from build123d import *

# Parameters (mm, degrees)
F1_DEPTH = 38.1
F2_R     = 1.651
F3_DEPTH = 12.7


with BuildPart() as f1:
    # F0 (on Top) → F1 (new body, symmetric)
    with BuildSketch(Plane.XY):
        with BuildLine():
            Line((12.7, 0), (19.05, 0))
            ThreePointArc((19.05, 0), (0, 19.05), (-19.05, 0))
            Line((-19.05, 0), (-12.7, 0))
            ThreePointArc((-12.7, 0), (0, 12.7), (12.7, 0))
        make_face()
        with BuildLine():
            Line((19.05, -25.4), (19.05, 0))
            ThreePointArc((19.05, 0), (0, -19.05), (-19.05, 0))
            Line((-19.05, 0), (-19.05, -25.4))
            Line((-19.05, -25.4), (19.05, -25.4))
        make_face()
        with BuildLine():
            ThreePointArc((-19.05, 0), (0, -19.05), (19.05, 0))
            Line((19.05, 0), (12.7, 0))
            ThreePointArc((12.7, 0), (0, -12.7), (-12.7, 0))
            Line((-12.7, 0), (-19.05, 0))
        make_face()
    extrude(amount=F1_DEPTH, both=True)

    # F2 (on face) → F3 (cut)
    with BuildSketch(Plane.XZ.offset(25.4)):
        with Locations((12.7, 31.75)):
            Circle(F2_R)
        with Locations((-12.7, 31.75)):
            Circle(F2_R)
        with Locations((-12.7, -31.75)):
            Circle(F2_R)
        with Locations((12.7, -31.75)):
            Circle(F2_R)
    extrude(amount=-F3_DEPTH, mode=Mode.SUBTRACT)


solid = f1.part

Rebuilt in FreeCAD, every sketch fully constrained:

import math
import FreeCAD as App
import Part
import Sketcher
Q = App.Units.Quantity

doc = App.newDocument("Part")
body = doc.addObject("PartDesign::Body", "Body")

# Sketch on XY plane
sketch1 = body.newObject("Sketcher::SketchObject", "Sketch")
sketch1.AttachmentSupport = (doc.getObject("XY_Plane"), [""])
sketch1.MapMode = "FlatFace"
sketch1.addGeometry([
    Part.ArcOfCircle(Part.Circle(App.Vector(0, 0, 0), App.Vector(0, 0, 1), 19), math.radians(0), math.radians(180)),  # 0
    Part.LineSegment(App.Vector(-19, 0, 0), App.Vector(-19, -25, 0)),  # 1
    Part.LineSegment(App.Vector(-19, -25, 0), App.Vector(19, -25, 0)),  # 2
    Part.LineSegment(App.Vector(19, -25, 0), App.Vector(19, 0, 0)),  # 3
    Part.Circle(App.Vector(0, 0, 0), App.Vector(0, 0, 1), 13),  # 4
], False)
sketch1.addConstraint([
    Sketcher.Constraint("Tangent", 0, 2, 1, 1),
    Sketcher.Constraint("Coincident", 1, 2, 2, 1),
    Sketcher.Constraint("Coincident", 2, 2, 3, 1),
    Sketcher.Constraint("Tangent", 3, 2, 0, 1),
    Sketcher.Constraint("Vertical", 1),
    Sketcher.Constraint("Horizontal", 2),
    Sketcher.Constraint("Vertical", 3),
    Sketcher.Constraint("Coincident", 0, 3, -1, 1),
    Sketcher.Constraint("Coincident", 4, 3, -1, 1),
    Sketcher.Constraint("Diameter", 4, Q("1 in")),
    Sketcher.Constraint("DistanceY", 1, 2, 1, 1, Q("1 in")),
    Sketcher.Constraint("Radius", 0, Q("0.75 in")),
])
pad1 = body.newObject("PartDesign::Pad", "Pad")
pad1.Profile = sketch1
pad1.Length = Q("3 in")
pad1.Midplane = True

# Sketch on XZ plane
sketch2 = body.newObject("Sketcher::SketchObject", "Sketch001")
sketch2.AttachmentSupport = (doc.getObject("XZ_Plane"), [""])
sketch2.MapMode = "FlatFace"
sketch2.AttachmentOffset = App.Placement(App.Vector(0, 0, 1 * 25.4), App.Rotation())
sketch2.addGeometry([
    Part.Circle(App.Vector(12.7, 31.8, 0), App.Vector(0, 0, 1), 1.7),
    Part.Circle(App.Vector(-12.7, 31.8, 0), App.Vector(0, 0, 1), 1.7),
    Part.Circle(App.Vector(-12.7, -31.8, 0), App.Vector(0, 0, 1), 1.7),
    Part.Circle(App.Vector(12.7, -31.8, 0), App.Vector(0, 0, 1), 1.7),
], False)
sketch2.addConstraint([
    Sketcher.Constraint("Equal", 0, 1),
    Sketcher.Constraint("Equal", 1, 2),
    Sketcher.Constraint("Equal", 2, 3),
    Sketcher.Constraint("Symmetric", 0, 3, 2, 3, -1, 1),
    Sketcher.Constraint("Symmetric", 1, 3, 3, 3, -1, 1),
    Sketcher.Constraint("Symmetric", 0, 3, 1, 3, -2),
    Sketcher.Constraint("Diameter", 0, Q("0.13 in")),
    Sketcher.Constraint("DistanceX", 1, 3, 0, 3, Q("1 in")),
    Sketcher.Constraint("DistanceY", 2, 3, 1, 3, Q("2.5 in")),
])
pocket1 = body.newObject("PartDesign::Pocket", "Pocket")
pocket1.Profile = sketch2
pocket1.Length = Q("0.5 in")

doc.recompute()
